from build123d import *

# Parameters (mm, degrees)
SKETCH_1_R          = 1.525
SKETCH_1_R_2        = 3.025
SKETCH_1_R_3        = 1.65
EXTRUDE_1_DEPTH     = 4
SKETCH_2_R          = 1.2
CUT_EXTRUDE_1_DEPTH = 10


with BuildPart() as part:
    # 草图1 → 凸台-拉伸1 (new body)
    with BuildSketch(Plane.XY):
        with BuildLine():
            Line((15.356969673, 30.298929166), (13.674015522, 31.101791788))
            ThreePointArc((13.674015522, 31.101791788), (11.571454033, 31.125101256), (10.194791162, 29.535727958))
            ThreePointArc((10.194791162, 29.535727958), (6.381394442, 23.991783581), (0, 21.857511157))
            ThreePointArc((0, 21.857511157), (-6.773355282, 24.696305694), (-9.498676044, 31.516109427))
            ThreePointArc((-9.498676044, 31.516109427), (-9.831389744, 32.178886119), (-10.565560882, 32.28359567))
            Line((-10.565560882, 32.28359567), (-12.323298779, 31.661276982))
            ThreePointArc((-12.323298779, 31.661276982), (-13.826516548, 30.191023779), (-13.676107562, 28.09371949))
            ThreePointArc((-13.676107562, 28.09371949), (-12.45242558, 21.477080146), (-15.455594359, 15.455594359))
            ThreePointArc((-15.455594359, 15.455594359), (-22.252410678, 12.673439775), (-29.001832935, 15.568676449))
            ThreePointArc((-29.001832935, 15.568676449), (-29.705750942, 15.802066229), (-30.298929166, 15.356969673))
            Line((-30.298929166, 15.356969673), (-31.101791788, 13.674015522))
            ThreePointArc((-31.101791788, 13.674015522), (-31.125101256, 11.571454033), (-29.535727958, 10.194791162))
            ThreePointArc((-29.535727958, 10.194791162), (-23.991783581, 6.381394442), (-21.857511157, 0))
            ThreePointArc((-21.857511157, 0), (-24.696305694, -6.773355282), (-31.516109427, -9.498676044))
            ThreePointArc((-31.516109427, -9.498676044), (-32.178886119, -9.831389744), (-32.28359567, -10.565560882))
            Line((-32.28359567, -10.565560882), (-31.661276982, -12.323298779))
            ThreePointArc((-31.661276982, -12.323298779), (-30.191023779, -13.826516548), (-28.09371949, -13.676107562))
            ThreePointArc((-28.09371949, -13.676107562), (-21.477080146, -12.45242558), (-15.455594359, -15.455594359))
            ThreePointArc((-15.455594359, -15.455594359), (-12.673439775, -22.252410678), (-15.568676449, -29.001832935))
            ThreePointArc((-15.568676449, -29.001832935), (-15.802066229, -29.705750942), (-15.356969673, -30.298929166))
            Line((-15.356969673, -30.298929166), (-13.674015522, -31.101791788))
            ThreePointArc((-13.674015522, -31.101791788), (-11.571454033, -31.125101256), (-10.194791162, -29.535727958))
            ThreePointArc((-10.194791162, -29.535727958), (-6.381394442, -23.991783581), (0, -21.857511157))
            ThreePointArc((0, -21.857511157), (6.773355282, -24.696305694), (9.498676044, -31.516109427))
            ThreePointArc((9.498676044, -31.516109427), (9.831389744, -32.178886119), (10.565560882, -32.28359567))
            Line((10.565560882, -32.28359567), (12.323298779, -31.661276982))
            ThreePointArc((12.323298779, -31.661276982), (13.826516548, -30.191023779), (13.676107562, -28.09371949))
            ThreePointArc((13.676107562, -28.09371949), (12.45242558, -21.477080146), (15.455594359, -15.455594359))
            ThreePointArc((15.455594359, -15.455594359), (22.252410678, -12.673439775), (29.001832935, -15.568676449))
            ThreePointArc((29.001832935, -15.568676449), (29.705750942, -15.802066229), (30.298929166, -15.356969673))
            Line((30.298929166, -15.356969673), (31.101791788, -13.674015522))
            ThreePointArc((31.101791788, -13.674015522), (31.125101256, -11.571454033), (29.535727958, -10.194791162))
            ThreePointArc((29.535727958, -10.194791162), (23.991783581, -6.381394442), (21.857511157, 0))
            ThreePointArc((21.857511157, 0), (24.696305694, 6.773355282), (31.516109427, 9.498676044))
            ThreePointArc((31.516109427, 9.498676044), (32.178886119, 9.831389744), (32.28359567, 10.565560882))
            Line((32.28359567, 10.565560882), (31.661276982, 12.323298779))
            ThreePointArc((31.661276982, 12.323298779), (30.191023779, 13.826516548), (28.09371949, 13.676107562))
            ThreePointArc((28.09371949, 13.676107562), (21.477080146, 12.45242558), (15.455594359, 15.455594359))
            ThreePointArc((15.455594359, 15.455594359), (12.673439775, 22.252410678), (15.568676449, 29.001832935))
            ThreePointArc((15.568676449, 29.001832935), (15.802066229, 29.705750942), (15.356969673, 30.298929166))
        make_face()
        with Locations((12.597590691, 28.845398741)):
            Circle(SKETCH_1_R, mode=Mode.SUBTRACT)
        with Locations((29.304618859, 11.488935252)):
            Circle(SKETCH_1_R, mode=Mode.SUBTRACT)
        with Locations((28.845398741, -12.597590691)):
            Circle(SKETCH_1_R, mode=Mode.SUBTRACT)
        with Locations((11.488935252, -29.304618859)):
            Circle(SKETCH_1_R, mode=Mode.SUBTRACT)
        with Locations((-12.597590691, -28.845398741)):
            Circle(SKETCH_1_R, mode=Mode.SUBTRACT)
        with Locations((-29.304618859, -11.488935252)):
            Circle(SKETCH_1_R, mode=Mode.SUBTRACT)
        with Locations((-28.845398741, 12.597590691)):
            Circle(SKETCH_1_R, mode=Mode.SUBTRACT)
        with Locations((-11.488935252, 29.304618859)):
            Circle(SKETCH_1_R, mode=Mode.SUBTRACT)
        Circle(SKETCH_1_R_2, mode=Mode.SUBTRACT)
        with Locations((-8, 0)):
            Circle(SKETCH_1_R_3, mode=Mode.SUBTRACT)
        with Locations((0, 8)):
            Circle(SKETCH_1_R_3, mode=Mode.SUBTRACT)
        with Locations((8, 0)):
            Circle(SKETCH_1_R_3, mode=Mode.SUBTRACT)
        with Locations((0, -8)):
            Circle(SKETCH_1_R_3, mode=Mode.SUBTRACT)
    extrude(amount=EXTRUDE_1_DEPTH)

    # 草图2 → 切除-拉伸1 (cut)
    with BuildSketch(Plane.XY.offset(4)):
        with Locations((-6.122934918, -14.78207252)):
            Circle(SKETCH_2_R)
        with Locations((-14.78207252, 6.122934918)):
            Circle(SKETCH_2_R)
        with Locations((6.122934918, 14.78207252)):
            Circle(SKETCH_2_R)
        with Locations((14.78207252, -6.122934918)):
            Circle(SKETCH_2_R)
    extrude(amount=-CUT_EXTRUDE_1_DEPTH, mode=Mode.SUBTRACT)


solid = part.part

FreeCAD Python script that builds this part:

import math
import FreeCAD as App
import Part
import Sketcher
from FreeCAD import Vector
Q = App.Units.Quantity

doc = App.newDocument("Part")
params = doc.addObject("Spreadsheet::Sheet", "Params")
for row, (alias, value) in enumerate([
    ("sketch1_diameter", "3.3 mm"),
    ("sketch1_diameter2", "3.3 mm"),
    ("sketch1_diameter3", "3.3 mm"),
    ("sketch1_diameter4", "3.3 mm"),
    ("sketch1_radius", "2.5 mm"),
    ("pad1_length", "4 mm"),
    ("sketch2_diameter", "2.4 mm"),
    ("pocket1_length", "10 mm"),
], start=1):
    params.set(f"A{row}", alias)
    params.set(f"B{row}", "=" + value)
    params.setAlias(f"B{row}", alias)

body = doc.addObject("PartDesign::Body", "Body")

sketch1 = body.newObject("Sketcher::SketchObject", "Sketch")
sketch1.AttachmentSupport = (doc.getObject("XY_Plane"), [""])
sketch1.MapMode = "FlatFace"
sketch1.addGeometry([
    Part.LineSegment(Vector(15.35697, 30.298929, 0), Vector(13.674016, 31.101792, 0)),
    Part.ArcOfCircle(Part.Circle(Vector(12.597591, 28.845399, 0), Vector(0, 0, 1), 2.5), math.radians(64.496265), math.radians(163.970533)),
    Part.ArcOfCircle(Part.Circle(Vector(0, 32.464712, 0), Vector(0, 0, 1), 10.607201), math.radians(-90), math.radians(-16.029467)),
    Part.ArcOfCircle(Part.Circle(Vector(0, 31.357511, 0), Vector(0, 0, 1), 9.5), math.radians(179.043428), math.radians(270)),
    Part.ArcOfCircle(Part.Circle(Vector(-10.298565, 31.529465, 0), Vector(0, 0, 1), 0.8), math.radians(-0.956572), math.radians(109.496265)),
    Part.LineSegment(Vector(-10.565561, 32.283596, 0), Vector(-12.323299, 31.661277, 0)),
    Part.ArcOfCircle(Part.Circle(Vector(-11.488935, 29.304619, 0), Vector(0, 0, 1), 2.5), math.radians(109.496265), math.radians(208.970533)),
    Part.ArcOfCircle(Part.Circle(Vector(-22.956018, 22.956018, 0), Vector(0, 0, 1), 10.607201), math.radians(-45), math.radians(28.970533)),
    Part.ArcOfCircle(Part.Circle(Vector(-22.173109, 22.173109, 0), Vector(0, 0, 1), 9.5), math.radians(-135.956572), math.radians(-45)),
    Part.ArcOfCircle(Part.Circle(Vector(-29.576883, 15.012514, 0), Vector(0, 0, 1), 0.8), math.radians(44.043428), math.radians(154.496265)),
    Part.LineSegment(Vector(-30.298929, 15.35697, 0), Vector(-31.101792, 13.674016, 0)),
    Part.ArcOfCircle(Part.Circle(Vector(-28.845399, 12.597591, 0), Vector(0, 0, 1), 2.5), math.radians(154.496265), math.radians(253.970533)),
    Part.ArcOfCircle(Part.Circle(Vector(-32.464712, 0, 0), Vector(0, 0, 1), 10.607201), math.radians(0), math.radians(73.970533)),
    Part.ArcOfCircle(Part.Circle(Vector(-31.357511, 0, 0), Vector(0, 0, 1), 9.5), math.radians(-90.956572), math.radians(0)),
    Part.ArcOfCircle(Part.Circle(Vector(-31.529465, -10.298565, 0), Vector(0, 0, 1), 0.8), math.radians(89.043428), math.radians(199.496265)),
    Part.LineSegment(Vector(-32.283596, -10.565561, 0), Vector(-31.661277, -12.323299, 0)),
    Part.ArcOfCircle(Part.Circle(Vector(-29.304619, -11.488935, 0), Vector(0, 0, 1), 2.5), math.radians(-160.503735), math.radians(-61.029467)),
    Part.ArcOfCircle(Part.Circle(Vector(-22.956018, -22.956018, 0), Vector(0, 0, 1), 10.607201), math.radians(45), math.radians(118.970533)),
    Part.ArcOfCircle(Part.Circle(Vector(-22.173109, -22.173109, 0), Vector(0, 0, 1), 9.5), math.radians(-45.956572), math.radians(45)),
    Part.ArcOfCircle(Part.Circle(Vector(-15.012514, -29.576883, 0), Vector(0, 0, 1), 0.8), math.radians(134.043428), math.radians(244.496265)),
    Part.LineSegment(Vector(-15.35697, -30.298929, 0), Vector(-13.674016, -31.101792, 0)),
    Part.ArcOfCircle(Part.Circle(Vector(-12.597591, -28.845399, 0), Vector(0, 0, 1), 2.5), math.radians(-115.503735), math.radians(-16.029467)),
    Part.ArcOfCircle(Part.Circle(Vector(0, -32.464712, 0), Vector(0, 0, 1), 10.607201), math.radians(90), math.radians(163.970533)),
    Part.ArcOfCircle(Part.Circle(Vector(0, -31.357511, 0), Vector(0, 0, 1), 9.5), math.radians(-0.956572), math.radians(90)),
    Part.ArcOfCircle(Part.Circle(Vector(10.298565, -31.529465, 0), Vector(0, 0, 1), 0.8), math.radians(179.043428), math.radians(289.496265)),
    Part.LineSegment(Vector(10.565561, -32.283596, 0), Vector(12.323299, -31.661277, 0)),
    Part.ArcOfCircle(Part.Circle(Vector(11.488935, -29.304619, 0), Vector(0, 0, 1), 2.5), math.radians(-70.503735), math.radians(28.970533)),
    Part.ArcOfCircle(Part.Circle(Vector(22.956018, -22.956018, 0), Vector(0, 0, 1), 10.607201), math.radians(135), math.radians(208.970533)),
    Part.ArcOfCircle(Part.Circle(Vector(22.173109, -22.173109, 0), Vector(0, 0, 1), 9.5), math.radians(44.043428), math.radians(135)),
    Part.ArcOfCircle(Part.Circle(Vector(29.576883, -15.012514, 0), Vector(0, 0, 1), 0.8), math.radians(-135.956572), math.radians(-25.503735)),
    Part.LineSegment(Vector(30.298929, -15.35697, 0), Vector(31.101792, -13.674016, 0)),
    Part.ArcOfCircle(Part.Circle(Vector(28.845399, -12.597591, 0), Vector(0, 0, 1), 2.5), math.radians(-25.503735), math.radians(73.970533)),
    Part.ArcOfCircle(Part.Circle(Vector(32.464712, 0, 0), Vector(0, 0, 1), 10.607201), math.radians(180), math.radians(253.970533)),
    Part.ArcOfCircle(Part.Circle(Vector(31.357511, 0, 0), Vector(0, 0, 1), 9.5), math.radians(89.043428), math.radians(180)),
    Part.ArcOfCircle(Part.Circle(Vector(31.529465, 10.298565, 0), Vector(0, 0, 1), 0.8), math.radians(-90.956572), math.radians(19.496265)),
    Part.LineSegment(Vector(32.283596, 10.565561, 0), Vector(31.661277, 12.323299, 0)),
    Part.ArcOfCircle(Part.Circle(Vector(29.304619, 11.488935, 0), Vector(0, 0, 1), 2.5), math.radians(19.496265), math.radians(118.970533)),
    Part.ArcOfCircle(Part.Circle(Vector(22.956018, 22.956018, 0), Vector(0, 0, 1), 10.607201), math.radians(-135), math.radians(-61.029467)),
    Part.ArcOfCircle(Part.Circle(Vector(22.173109, 22.173109, 0), Vector(0, 0, 1), 9.5), math.radians(134.043428), math.radians(225)),
    Part.ArcOfCircle(Part.Circle(Vector(15.012514, 29.576883, 0), Vector(0, 0, 1), 0.8), math.radians(-45.956572), math.radians(64.496265)),
    Part.Circle(Vector(-12.597591, -28.845399, 0), Vector(0, 0, 1), 1.525),
    Part.Circle(Vector(-29.304619, -11.488935, 0), Vector(0, 0, 1), 1.525),
    Part.Circle(Vector(11.488935, -29.304619, 0), Vector(0, 0, 1), 1.525),
    Part.Circle(Vector(0, -8, 0), Vector(0, 0, 1), 1.65),
    Part.Circle(Vector(28.845399, -12.597591, 0), Vector(0, 0, 1), 1.525),
    Part.Circle(Vector(-28.845399, 12.597591, 0), Vector(0, 0, 1), 1.525),
    Part.Circle(Vector(-8, 0, 0), Vector(0, 0, 1), 1.65),
    Part.Circle(Vector(-11.488935, 29.304619, 0), Vector(0, 0, 1), 1.525),
    Part.Circle(Vector(0, 0, 0), Vector(0, 0, 1), 3.025),
    Part.Circle(Vector(8, 0, 0), Vector(0, 0, 1), 1.65),
    Part.Circle(Vector(0, 8, 0), Vector(0, 0, 1), 1.65),
    Part.Circle(Vector(29.304619, 11.488935, 0), Vector(0, 0, 1), 1.525),
    Part.Circle(Vector(12.597591, 28.845399, 0), Vector(0, 0, 1), 1.525),
], False)
sketch1.addConstraint([
    Sketcher.Constraint("Coincident", 0, 2, 1, 1),
    Sketcher.Constraint("Coincident", 1, 2, 2, 2),
    Sketcher.Constraint("Coincident", 2, 1, 3, 2),
    Sketcher.Constraint("Coincident", 3, 1, 4, 1),
    Sketcher.Constraint("Coincident", 4, 2, 5, 1),
    Sketcher.Constraint("Coincident", 5, 2, 6, 1),
    Sketcher.Constraint("Coincident", 6, 2, 7, 2),
    Sketcher.Constraint("Coincident", 7, 1, 8, 2),
    Sketcher.Constraint("Coincident", 8, 1, 9, 1),
    Sketcher.Constraint("Coincident", 9, 2, 10, 1),
    Sketcher.Constraint("Coincident", 10, 2, 11, 1),
    Sketcher.Constraint("Coincident", 11, 2, 12, 2),
    Sketcher.Constraint("Coincident", 12, 1, 13, 2),
    Sketcher.Constraint("Coincident", 13, 1, 14, 1),
    Sketcher.Constraint("Coincident", 14, 2, 15, 1),
    Sketcher.Constraint("Coincident", 15, 2, 16, 1),
    Sketcher.Constraint("Coincident", 16, 2, 17, 2),
    Sketcher.Constraint("Coincident", 17, 1, 18, 2),
    Sketcher.Constraint("Coincident", 18, 1, 19, 1),
    Sketcher.Constraint("Coincident", 19, 2, 20, 1),
    Sketcher.Constraint("Coincident", 20, 2, 21, 1),
    Sketcher.Constraint("Coincident", 21, 2, 22, 2),
    Sketcher.Constraint("Coincident", 22, 1, 23, 2),
    Sketcher.Constraint("Coincident", 23, 1, 24, 1),
    Sketcher.Constraint("Coincident", 24, 2, 25, 1),
    Sketcher.Constraint("Coincident", 25, 2, 26, 1),
    Sketcher.Constraint("Coincident", 26, 2, 27, 2),
    Sketcher.Constraint("Coincident", 27, 1, 28, 2),
    Sketcher.Constraint("Coincident", 28, 1, 29, 1),
    Sketcher.Constraint("Coincident", 29, 2, 30, 1),
    Sketcher.Constraint("Coincident", 30, 2, 31, 1),
    Sketcher.Constraint("Coincident", 31, 2, 32, 2),
    Sketcher.Constraint("Coincident", 32, 1, 33, 2),
    Sketcher.Constraint("Coincident", 33, 1, 34, 1),
    Sketcher.Constraint("Coincident", 34, 2, 35, 1),
    Sketcher.Constraint("Coincident", 35, 2, 36, 1),
    Sketcher.Constraint("Coincident", 36, 2, 37, 2),
    Sketcher.Constraint("Coincident", 37, 1, 38, 2),
    Sketcher.Constraint("Coincident", 38, 1, 39, 1),
    Sketcher.Constraint("Coincident", 39, 2, 0, 1),
    Sketcher.Constraint("Coincident", 48, 3, -1, 1),
    Sketcher.Constraint("Coincident", 40, 3, 21, 3),
    Sketcher.Constraint("Coincident", 41, 3, 16, 3),
    Sketcher.Constraint("Coincident", 42, 3, 26, 3),
    Sketcher.Constraint("Coincident", 44, 3, 31, 3),
    Sketcher.Constraint("Coincident", 45, 3, 11, 3),
    Sketcher.Constraint("Coincident", 47, 3, 6, 3),
    Sketcher.Constraint("Coincident", 51, 3, 36, 3),
    Sketcher.Constraint("Coincident", 52, 3, 1, 3),
    Sketcher.Constraint("PointOnObject", 2, 3, -2),
    Sketcher.Constraint("PointOnObject", 3, 3, -2),
    Sketcher.Constraint("PointOnObject", 12, 3, -1),
    Sketcher.Constraint("PointOnObject", 13, 3, -1),
    Sketcher.Constraint("PointOnObject", 22, 3, -2),
    Sketcher.Constraint("PointOnObject", 23, 3, -2),
    Sketcher.Constraint("PointOnObject", 32, 3, -1),
    Sketcher.Constraint("PointOnObject", 33, 3, -1),
    Sketcher.Constraint("PointOnObject", 43, 3, -2),
    Sketcher.Constraint("PointOnObject", 46, 3, -1),
    Sketcher.Constraint("PointOnObject", 49, 3, -1),
    Sketcher.Constraint("PointOnObject", 50, 3, -2),
    Sketcher.Constraint("PointOnObject", 2, 1, -2),
    Sketcher.Constraint("PointOnObject", 12, 1, -1),
    Sketcher.Constraint("PointOnObject", 22, 1, -2),
    Sketcher.Constraint("PointOnObject", 32, 1, -1),
    Sketcher.Constraint("Diameter", 43, Q("3.3 mm")),
    Sketcher.Constraint("Diameter", 46, Q("3.3 mm")),
    Sketcher.Constraint("Diameter", 49, Q("3.3 mm")),
    Sketcher.Constraint("Diameter", 50, Q("3.3 mm")),
    Sketcher.Constraint("Radius", 1, Q("2.5 mm")),
    Sketcher.Constraint("Radius", 3, Q("9.5 mm")),
    Sketcher.Constraint("Radius", 4, Q("0.8 mm")),
    Sketcher.Constraint("Radius", 6, Q("2.5 mm")),
    Sketcher.Constraint("Radius", 8, Q("9.5 mm")),
    Sketcher.Constraint("Radius", 9, Q("0.8 mm")),
    Sketcher.Constraint("Radius", 11, Q("2.5 mm")),
    Sketcher.Constraint("Radius", 13, Q("9.5 mm")),
    Sketcher.Constraint("Radius", 14, Q("0.8 mm")),
    Sketcher.Constraint("Radius", 16, Q("2.5 mm")),
    Sketcher.Constraint("Radius", 18, Q("9.5 mm")),
    Sketcher.Constraint("Radius", 19, Q("0.8 mm")),
    Sketcher.Constraint("Radius", 21, Q("2.5 mm")),
    Sketcher.Constraint("Radius", 23, Q("9.5 mm")),
    Sketcher.Constraint("Radius", 24, Q("0.8 mm")),
    Sketcher.Constraint("Radius", 26, Q("2.5 mm")),
    Sketcher.Constraint("Radius", 28, Q("9.5 mm")),
    Sketcher.Constraint("Radius", 29, Q("0.8 mm")),
    Sketcher.Constraint("Radius", 31, Q("2.5 mm")),
    Sketcher.Constraint("Radius", 33, Q("9.5 mm")),
    Sketcher.Constraint("Radius", 34, Q("0.8 mm")),
    Sketcher.Constraint("Radius", 36, Q("2.5 mm")),
    Sketcher.Constraint("Radius", 38, Q("9.5 mm")),
    Sketcher.Constraint("Radius", 39, Q("0.8 mm")),
    Sketcher.Constraint("Diameter", 40, Q("3.05 mm")),
    Sketcher.Constraint("Diameter", 41, Q("3.05 mm")),
    Sketcher.Constraint("Diameter", 42, Q("3.05 mm")),
    Sketcher.Constraint("Diameter", 44, Q("3.05 mm")),
    Sketcher.Constraint("Diameter", 45, Q("3.05 mm")),
    Sketcher.Constraint("Diameter", 47, Q("3.05 mm")),
    Sketcher.Constraint("Diameter", 48, Q("6.05 mm")),
    Sketcher.Constraint("Diameter", 51, Q("3.05 mm")),
    Sketcher.Constraint("Diameter", 52, Q("3.05 mm")),
    Sketcher.Constraint("DistanceY", 43, 3, -1, 1, Q("8 mm")),
    Sketcher.Constraint("DistanceX", 46, 3, -1, 1, Q("8 mm")),
    Sketcher.Constraint("DistanceX", -1, 1, 49, 3, Q("8 mm")),
    Sketcher.Constraint("DistanceY", -1, 1, 50, 3, Q("8 mm")),
    Sketcher.Constraint("Radius", 2, Q("10.607201 mm")),
    Sketcher.Constraint("Radius", 7, Q("10.607201 mm")),
    Sketcher.Constraint("Radius", 12, Q("10.607201 mm")),
    Sketcher.Constraint("Radius", 17, Q("10.607201 mm")),
    Sketcher.Constraint("Radius", 22, Q("10.607201 mm")),
    Sketcher.Constraint("Radius", 27, Q("10.607201 mm")),
    Sketcher.Constraint("Radius", 32, Q("10.607201 mm")),
    Sketcher.Constraint("Radius", 37, Q("10.607201 mm")),
    Sketcher.Constraint("DistanceY", -1, 1, 1, 3, Q("28.845399 mm")),
    Sketcher.Constraint("DistanceX", 11, 3, -1, 1, Q("28.845399 mm")),
    Sketcher.Constraint("DistanceY", 21, 3, -1, 1, Q("28.845399 mm")),
    Sketcher.Constraint("DistanceX", -1, 1, 31, 3, Q("28.845399 mm")),
    Sketcher.Constraint("DistanceX", 5, 2, -1, 1, Q("12.323299 mm")),
    Sketcher.Constraint("DistanceY", 15, 2, -1, 1, Q("12.323299 mm")),
    Sketcher.Constraint("DistanceX", -1, 1, 25, 2, Q("12.323299 mm")),
    Sketcher.Constraint("DistanceY", -1, 1, 35, 2, Q("12.323299 mm")),
    Sketcher.Constraint("Distance", 0, Q("1.864651 mm")),
    Sketcher.Constraint("Distance", 5, Q("1.864651 mm")),
    Sketcher.Constraint("Distance", 10, Q("1.864651 mm")),
    Sketcher.Constraint("Distance", 15, Q("1.864651 mm")),
    Sketcher.Constraint("Distance", 20, Q("1.864651 mm")),
    Sketcher.Constraint("Distance", 25, Q("1.864651 mm")),
    Sketcher.Constraint("Distance", 30, Q("1.864651 mm")),
    Sketcher.Constraint("Distance", 35, Q("1.864651 mm")),
    Sketcher.Constraint("DistanceX", -1, 1, 1, 3, Q("12.597591 mm")),
    Sketcher.Constraint("DistanceY", -1, 1, 6, 3, Q("29.304619 mm")),
    Sketcher.Constraint("DistanceX", 7, 3, -1, 1, Q("22.956018 mm")),
    Sketcher.Constraint("DistanceY", -1, 1, 7, 3, Q("22.956018 mm")),
    Sketcher.Constraint("DistanceX", 8, 3, -1, 1, Q("22.173109 mm")),
    Sketcher.Constraint("DistanceY", -1, 1, 11, 3, Q("12.597591 mm")),
    Sketcher.Constraint("DistanceX", 16, 3, -1, 1, Q("29.304619 mm")),
    Sketcher.Constraint("DistanceX", 17, 3, -1, 1, Q("22.956018 mm")),
    Sketcher.Constraint("DistanceY", 17, 3, -1, 1, Q("22.956018 mm")),
    Sketcher.Constraint("DistanceX", 18, 3, -1, 1, Q("22.173109 mm")),
    Sketcher.Constraint("DistanceX", 21, 3, -1, 1, Q("12.597591 mm")),
    Sketcher.Constraint("DistanceY", 26, 3, -1, 1, Q("29.304619 mm")),
    Sketcher.Constraint("DistanceX", -1, 1, 27, 3, Q("22.956018 mm")),
    Sketcher.Constraint("DistanceY", 27, 3, -1, 1, Q("22.956018 mm")),
    Sketcher.Constraint("DistanceX", -1, 1, 28, 3, Q("22.173109 mm")),
    Sketcher.Constraint("DistanceY", 31, 3, -1, 1, Q("12.597591 mm")),
    Sketcher.Constraint("DistanceX", -1, 1, 36, 3, Q("29.304619 mm")),
    Sketcher.Constraint("DistanceX", -1, 1, 37, 3, Q("22.956018 mm")),
    Sketcher.Constraint("DistanceY", -1, 1, 37, 3, Q("22.956018 mm")),
    Sketcher.Constraint("DistanceX", -1, 1, 38, 3, Q("22.173109 mm")),
    Sketcher.Constraint("DistanceY", -1, 1, 0, 2, Q("31.101792 mm")),
    Sketcher.Constraint("DistanceX", -1, 1, 1, 2, Q("10.194791 mm")),
    Sketcher.Constraint("DistanceY", -1, 1, 3, 1, Q("31.516109 mm")),
    Sketcher.Constraint("DistanceX", 4, 2, -1, 1, Q("10.565561 mm")),
    Sketcher.Constraint("DistanceY", -1, 1, 6, 2, Q("28.093719 mm")),
    Sketcher.Constraint("DistanceX", 9, 2, -1, 1, Q("30.298929 mm")),
    Sketcher.Constraint("DistanceY", -1, 1, 9, 2, Q("15.35697 mm")),
    Sketcher.Constraint("DistanceY", -1, 1, 11, 2, Q("10.194791 mm")),
    Sketcher.Constraint("DistanceX", 13, 1, -1, 1, Q("31.516109 mm")),
    Sketcher.Constraint("DistanceY", 14, 2, -1, 1, Q("10.565561 mm")),
    Sketcher.Constraint("DistanceX", 16, 2, -1, 1, Q("28.093719 mm")),
    Sketcher.Constraint("DistanceX", 19, 2, -1, 1, Q("15.35697 mm")),
    Sketcher.Constraint("DistanceY", 19, 2, -1, 1, Q("30.298929 mm")),
    Sketcher.Constraint("DistanceX", 21, 2, -1, 1, Q("10.194791 mm")),
    Sketcher.Constraint("DistanceY", 23, 1, -1, 1, Q("31.516109 mm")),
    Sketcher.Constraint("DistanceX", -1, 1, 24, 2, Q("10.565561 mm")),
    Sketcher.Constraint("DistanceY", 26, 2, -1, 1, Q("28.093719 mm")),
    Sketcher.Constraint("DistanceX", -1, 1, 29, 2, Q("30.298929 mm")),
    Sketcher.Constraint("DistanceY", 29, 2, -1, 1, Q("15.35697 mm")),
    Sketcher.Constraint("DistanceY", 31, 2, -1, 1, Q("10.194791 mm")),
    Sketcher.Constraint("DistanceX", -1, 1, 33, 1, Q("31.516109 mm")),
    Sketcher.Constraint("DistanceY", -1, 1, 34, 2, Q("10.565561 mm")),
    Sketcher.Constraint("DistanceX", -1, 1, 36, 2, Q("28.093719 mm")),
    Sketcher.Constraint("DistanceX", -1, 1, 39, 2, Q("15.35697 mm")),
    Sketcher.Constraint("DistanceX", 7, 1, -1, 1, Q("15.455594 mm")),
    Sketcher.Constraint("DistanceX", 8, 1, -1, 1, Q("29.001833 mm")),
    Sketcher.Constraint("DistanceX", 17, 1, -1, 1, Q("15.455594 mm")),
    Sketcher.Constraint("DistanceX", 18, 1, -1, 1, Q("15.568676 mm")),
    Sketcher.Constraint("DistanceX", -1, 1, 27, 1, Q("15.455594 mm")),
    Sketcher.Constraint("DistanceX", -1, 1, 28, 1, Q("29.001833 mm")),
    Sketcher.Constraint("DistanceX", -1, 1, 37, 1, Q("15.455594 mm")),
    Sketcher.Constraint("DistanceX", -1, 1, 38, 1, Q("15.568676 mm")),
])
sketch1.setExpression("Constraints[65]", "Params.sketch1_diameter")
sketch1.setExpression("Constraints[66]", "Params.sketch1_diameter2")
sketch1.setExpression("Constraints[67]", "Params.sketch1_diameter3")
sketch1.setExpression("Constraints[68]", "Params.sketch1_diameter4")
sketch1.setExpression("Constraints[69]", "Params.sketch1_radius")
pad1 = body.newObject("PartDesign::Pad", "Pad")
pad1.Profile = sketch1
pad1.setExpression("Length", "Params.pad1_length")

sketch2 = body.newObject("Sketcher::SketchObject", "Sketch001")
sketch2.AttachmentSupport = (doc.getObject("XY_Plane"), [""])
sketch2.MapMode = "FlatFace"
sketch2.AttachmentOffset = App.Placement(Vector(0, 0, 4), App.Rotation())
sketch2.addGeometry([
    Part.Circle(Vector(-6.1, -14.8, 0), Vector(0, 0, 1), 1.2),
    Part.Circle(Vector(-14.8, 6.1, 0), Vector(0, 0, 1), 1.2),
    Part.Circle(Vector(6.1, 14.8, 0), Vector(0, 0, 1), 1.2),
    Part.Circle(Vector(14.8, -6.1, 0), Vector(0, 0, 1), 1.2),
], False)
sketch2.addConstraint([
    Sketcher.Constraint("Equal", 0, 1),
    Sketcher.Constraint("Equal", 1, 2),
    Sketcher.Constraint("Equal", 2, 3),
    Sketcher.Constraint("Symmetric", 0, 3, 2, 3, -1, 1),
    Sketcher.Constraint("Symmetric", 1, 3, 3, 3, -1, 1),
    Sketcher.Constraint("Diameter", 0, Q("2.4 mm")),
    Sketcher.Constraint("DistanceX", 0, 3, 2, 3, Q("12.24587 mm")),
    Sketcher.Constraint("DistanceY", 3, 3, 1, 3, Q("12.24587 mm")),
    Sketcher.Constraint("DistanceY", 0, 3, -1, 1, Q("14.782073 mm")),
    Sketcher.Constraint("DistanceX", 1, 3, -1, 1, Q("14.782073 mm")),
])
sketch2.setExpression("Constraints[5]", "Params.sketch2_diameter")
pocket1 = body.newObject("PartDesign::Pocket", "Pocket")
pocket1.Profile = sketch2
pocket1.setExpression("Length", "Params.pocket1_length")

doc.recompute()
